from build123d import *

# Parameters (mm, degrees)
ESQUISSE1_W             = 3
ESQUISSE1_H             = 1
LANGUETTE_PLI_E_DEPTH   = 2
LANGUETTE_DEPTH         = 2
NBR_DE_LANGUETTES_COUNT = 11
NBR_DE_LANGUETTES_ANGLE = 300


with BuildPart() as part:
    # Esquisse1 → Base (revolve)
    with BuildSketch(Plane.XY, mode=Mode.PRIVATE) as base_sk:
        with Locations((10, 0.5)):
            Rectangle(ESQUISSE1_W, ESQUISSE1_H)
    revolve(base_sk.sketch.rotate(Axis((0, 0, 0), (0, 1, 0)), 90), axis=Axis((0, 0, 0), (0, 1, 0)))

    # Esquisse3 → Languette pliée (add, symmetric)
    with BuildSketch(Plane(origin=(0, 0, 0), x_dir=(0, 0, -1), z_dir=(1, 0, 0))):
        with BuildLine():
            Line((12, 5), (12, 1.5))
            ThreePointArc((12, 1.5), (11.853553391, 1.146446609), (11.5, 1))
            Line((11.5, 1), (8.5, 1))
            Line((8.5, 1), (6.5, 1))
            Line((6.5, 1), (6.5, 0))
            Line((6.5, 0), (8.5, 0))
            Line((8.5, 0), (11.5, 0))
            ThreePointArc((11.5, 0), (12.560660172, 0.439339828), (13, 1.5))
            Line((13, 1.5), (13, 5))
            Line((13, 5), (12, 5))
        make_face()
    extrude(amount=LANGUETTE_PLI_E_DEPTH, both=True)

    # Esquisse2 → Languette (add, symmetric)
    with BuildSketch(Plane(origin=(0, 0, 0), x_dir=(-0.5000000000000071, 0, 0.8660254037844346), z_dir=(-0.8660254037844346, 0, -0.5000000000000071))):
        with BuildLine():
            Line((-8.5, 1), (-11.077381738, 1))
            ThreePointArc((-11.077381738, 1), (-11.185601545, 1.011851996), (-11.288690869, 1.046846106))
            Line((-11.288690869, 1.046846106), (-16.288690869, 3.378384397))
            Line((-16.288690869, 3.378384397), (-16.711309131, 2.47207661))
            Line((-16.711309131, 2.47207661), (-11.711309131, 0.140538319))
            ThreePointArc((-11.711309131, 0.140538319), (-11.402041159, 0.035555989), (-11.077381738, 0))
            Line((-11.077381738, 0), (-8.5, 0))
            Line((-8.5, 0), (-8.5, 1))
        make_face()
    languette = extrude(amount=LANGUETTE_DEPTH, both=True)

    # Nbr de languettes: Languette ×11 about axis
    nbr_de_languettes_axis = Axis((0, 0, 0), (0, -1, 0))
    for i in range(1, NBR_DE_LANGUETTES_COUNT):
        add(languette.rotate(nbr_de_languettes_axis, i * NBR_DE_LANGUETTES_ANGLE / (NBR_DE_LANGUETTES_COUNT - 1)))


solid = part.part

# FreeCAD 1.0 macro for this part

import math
import FreeCAD as App
import Part
import Sketcher
from FreeCAD import Vector
Q = App.Units.Quantity

doc = App.newDocument("Part")
body = doc.addObject("PartDesign::Body", "Body")

# Sketch on XY plane
sketch1 = doc.addObject("Sketcher::SketchObject", "Sketch")
body.addObject(sketch1)
sketch1.AttachmentSupport = (doc.XY_Plane, [""])
sketch1.MapMode = "FlatFace"
sketch1.addGeometry(Part.LineSegment(Vector(8.5, 1, 0), Vector(8.5, 0, 0)), False)
sketch1.addGeometry(Part.LineSegment(Vector(8.5, 0, 0), Vector(11.5, 0, 0)), False)
sketch1.addGeometry(Part.LineSegment(Vector(11.5, 0, 0), Vector(11.5, 1, 0)), False)
sketch1.addGeometry(Part.LineSegment(Vector(11.5, 1, 0), Vector(8.5, 1, 0)), False)
sketch1.addConstraint(Sketcher.Constraint("Coincident", 0, 2, 1, 1))
sketch1.addConstraint(Sketcher.Constraint("Coincident", 1, 2, 2, 1))
sketch1.addConstraint(Sketcher.Constraint("Coincident", 2, 2, 3, 1))
sketch1.addConstraint(Sketcher.Constraint("Coincident", 3, 2, 0, 1))
sketch1.addConstraint(Sketcher.Constraint("Vertical", 0))
sketch1.addConstraint(Sketcher.Constraint("Horizontal", 1))
sketch1.addConstraint(Sketcher.Constraint("Vertical", 2))
sketch1.addConstraint(Sketcher.Constraint("Horizontal", 3))
sketch1.addConstraint(Sketcher.Constraint("PointOnObject", 0, 2, -1))
sketch1.addConstraint(Sketcher.Constraint("DistanceX", 1, 1, 1, 2, 3.0))
sketch1.addConstraint(Sketcher.Constraint("DistanceY", 0, 2, 0, 1, 1.0))
sketch1.addConstraint(Sketcher.Constraint("DistanceX", -1, 1, 0, 2, 8.5))
revolution = doc.addObject("PartDesign::Revolution", "Revolution")
body.addObject(revolution)
revolution.Profile = sketch1
revolution.ReferenceAxis = (sketch1, ["V_Axis"])
revolution.Angle = 360

# Sketch on YZ plane
sketch2 = doc.addObject("Sketcher::SketchObject", "Sketch001")
body.addObject(sketch2)
sketch2.AttachmentSupport = (doc.YZ_Plane, [""])
sketch2.MapMode = "FlatFace"
sketch2.addGeometry(Part.LineSegment(Vector(5, -12, 0), Vector(1.5, -12, 0)), False)
sketch2.addGeometry(Part.ArcOfCircle(Part.Circle(Vector(1.5, -11.5, 0), Vector(0, 0, 1), 0.5), math.radians(180), math.radians(270)), False)
sketch2.addGeometry(Part.LineSegment(Vector(1, -11.5, 0), Vector(1, -6.5, 0)), False)
sketch2.addGeometry(Part.LineSegment(Vector(1, -6.5, 0), Vector(0, -6.5, 0)), False)
sketch2.addGeometry(Part.LineSegment(Vector(0, -6.5, 0), Vector(0, -11.5, 0)), False)
sketch2.addGeometry(Part.ArcOfCircle(Part.Circle(Vector(1.5, -11.5, 0), Vector(0, 0, 1), 1.5), math.radians(180), math.radians(270)), False)
sketch2.addGeometry(Part.LineSegment(Vector(1.5, -13, 0), Vector(5, -13, 0)), False)
sketch2.addGeometry(Part.LineSegment(Vector(5, -13, 0), Vector(5, -12, 0)), False)
sketch2.addConstraint(Sketcher.Constraint("Tangent", 0, 2, 1, 2))
sketch2.addConstraint(Sketcher.Constraint("Tangent", 1, 1, 2, 1))
sketch2.addConstraint(Sketcher.Constraint("Coincident", 2, 2, 3, 1))
sketch2.addConstraint(Sketcher.Constraint("Coincident", 3, 2, 4, 1))
sketch2.addConstraint(Sketcher.Constraint("Tangent", 4, 2, 5, 1))
sketch2.addConstraint(Sketcher.Constraint("Tangent", 5, 2, 6, 1))
sketch2.addConstraint(Sketcher.Constraint("Coincident", 6, 2, 7, 1))
sketch2.addConstraint(Sketcher.Constraint("Coincident", 7, 2, 0, 1))
sketch2.addConstraint(Sketcher.Constraint("Horizontal", 0))
sketch2.addConstraint(Sketcher.Constraint("Vertical", 2))
sketch2.addConstraint(Sketcher.Constraint("Horizontal", 3))
sketch2.addConstraint(Sketcher.Constraint("Vertical", 4))
sketch2.addConstraint(Sketcher.Constraint("Horizontal", 6))
sketch2.addConstraint(Sketcher.Constraint("Vertical", 7))
sketch2.addConstraint(Sketcher.Constraint("Coincident", 5, 3, 1, 3))
sketch2.addConstraint(Sketcher.Constraint("PointOnObject", 3, 2, -2))
sketch2.addConstraint(Sketcher.Constraint("Radius", 1, 0.5))
sketch2.addConstraint(Sketcher.Constraint("Radius", 5, 1.5))
sketch2.addConstraint(Sketcher.Constraint("DistanceY", 2, 1, 2, 2, 5.0))
sketch2.addConstraint(Sketcher.Constraint("DistanceX", 0, 2, 0, 1, 3.5))
sketch2.addConstraint(Sketcher.Constraint("DistanceY", 0, 2, -1, 1, 12.0))
pad1 = doc.addObject("PartDesign::Pad", "Pad")
body.addObject(pad1)
pad1.Profile = sketch2
pad1.Length = 4
pad1.Midplane = True

# Sketch on an angled plane
sketch3 = doc.addObject("Sketcher::SketchObject", "Sketch002")
body.addObject(sketch3)
sketch3.Placement = App.Placement(Vector(0, 0, 0), App.Rotation(Vector(-0.5, 0, 0.866025404), Vector(0, 1, 0), Vector(-0.866025404, 0, -0.5), "ZXY"))
sketch3.addGeometry(Part.LineSegment(Vector(-8.5, 1, 0), Vector(-11.077382, 1, 0)), False)
sketch3.addGeometry(Part.ArcOfCircle(Part.Circle(Vector(-11.077382, 1.5, 0), Vector(0, 0, 1), 0.5), math.radians(-115), math.radians(-90)), False)
sketch3.addGeometry(Part.LineSegment(Vector(-11.288691, 1.046846, 0), Vector(-16.288691, 3.378384, 0)), False)
sketch3.addGeometry(Part.LineSegment(Vector(-16.288691, 3.378384, 0), Vector(-16.711309, 2.472077, 0)), False)
sketch3.addGeometry(Part.LineSegment(Vector(-16.711309, 2.472077, 0), Vector(-11.711309, 0.140538, 0)), False)
sketch3.addGeometry(Part.ArcOfCircle(Part.Circle(Vector(-11.077382, 1.5, 0), Vector(0, 0, 1), 1.5), math.radians(-115), math.radians(-90)), False)
sketch3.addGeometry(Part.LineSegment(Vector(-11.077382, 0, 0), Vector(-8.5, 0, 0)), False)
sketch3.addGeometry(Part.LineSegment(Vector(-8.5, 0, 0), Vector(-8.5, 1, 0)), False)
sketch3.addConstraint(Sketcher.Constraint("Tangent", 0, 2, 1, 2))
sketch3.addConstraint(Sketcher.Constraint("Tangent", 1, 1, 2, 1))
sketch3.addConstraint(Sketcher.Constraint("Coincident", 2, 2, 3, 1))
sketch3.addConstraint(Sketcher.Constraint("Coincident", 3, 2, 4, 1))
sketch3.addConstraint(Sketcher.Constraint("Tangent", 4, 2, 5, 1))
sketch3.addConstraint(Sketcher.Constraint("Tangent", 5, 2, 6, 1))
sketch3.addConstraint(Sketcher.Constraint("Coincident", 6, 2, 7, 1))
sketch3.addConstraint(Sketcher.Constraint("Coincident", 7, 2, 0, 1))
sketch3.addConstraint(Sketcher.Constraint("Horizontal", 0))
sketch3.addConstraint(Sketcher.Constraint("Horizontal", 6))
sketch3.addConstraint(Sketcher.Constraint("Vertical", 7))
sketch3.addConstraint(Sketcher.Constraint("Coincident", 5, 3, 1, 3))
sketch3.addConstraint(Sketcher.Constraint("PointOnObject", 5, 2, -1))
sketch3.addConstraint(Sketcher.Constraint("Perpendicular", 2, 3))
sketch3.addConstraint(Sketcher.Constraint("Perpendicular", 3, 4))
sketch3.addConstraint(Sketcher.Constraint("Radius", 1, 0.5))
sketch3.addConstraint(Sketcher.Constraint("Radius", 5, 1.5))
sketch3.addConstraint(Sketcher.Constraint("Angle", 2, Q("155 deg")))
sketch3.addConstraint(Sketcher.Constraint("DistanceX", 2, 2, 1, 1, 5.0))
sketch3.addConstraint(Sketcher.Constraint("DistanceX", 6, 2, -1, 1, 8.5))
sketch3.addConstraint(Sketcher.Constraint("DistanceX", 0, 2, 0, 1, 2.577382))
pad2 = doc.addObject("PartDesign::Pad", "Pad001")
body.addObject(pad2)
pad2.Profile = sketch3
pad2.Length = 4
pad2.Midplane = True
doc.recompute()

polarpattern = doc.addObject("PartDesign::PolarPattern", "PolarPattern")
body.addObject(polarpattern)
polarpattern.Originals = [pad2]
polarpattern.Axis = (doc.Y_Axis, [""])
polarpattern.Angle = 300
polarpattern.Occurrences = 11
polarpattern.Reversed = True
body.Tip = polarpattern

doc.recompute()
